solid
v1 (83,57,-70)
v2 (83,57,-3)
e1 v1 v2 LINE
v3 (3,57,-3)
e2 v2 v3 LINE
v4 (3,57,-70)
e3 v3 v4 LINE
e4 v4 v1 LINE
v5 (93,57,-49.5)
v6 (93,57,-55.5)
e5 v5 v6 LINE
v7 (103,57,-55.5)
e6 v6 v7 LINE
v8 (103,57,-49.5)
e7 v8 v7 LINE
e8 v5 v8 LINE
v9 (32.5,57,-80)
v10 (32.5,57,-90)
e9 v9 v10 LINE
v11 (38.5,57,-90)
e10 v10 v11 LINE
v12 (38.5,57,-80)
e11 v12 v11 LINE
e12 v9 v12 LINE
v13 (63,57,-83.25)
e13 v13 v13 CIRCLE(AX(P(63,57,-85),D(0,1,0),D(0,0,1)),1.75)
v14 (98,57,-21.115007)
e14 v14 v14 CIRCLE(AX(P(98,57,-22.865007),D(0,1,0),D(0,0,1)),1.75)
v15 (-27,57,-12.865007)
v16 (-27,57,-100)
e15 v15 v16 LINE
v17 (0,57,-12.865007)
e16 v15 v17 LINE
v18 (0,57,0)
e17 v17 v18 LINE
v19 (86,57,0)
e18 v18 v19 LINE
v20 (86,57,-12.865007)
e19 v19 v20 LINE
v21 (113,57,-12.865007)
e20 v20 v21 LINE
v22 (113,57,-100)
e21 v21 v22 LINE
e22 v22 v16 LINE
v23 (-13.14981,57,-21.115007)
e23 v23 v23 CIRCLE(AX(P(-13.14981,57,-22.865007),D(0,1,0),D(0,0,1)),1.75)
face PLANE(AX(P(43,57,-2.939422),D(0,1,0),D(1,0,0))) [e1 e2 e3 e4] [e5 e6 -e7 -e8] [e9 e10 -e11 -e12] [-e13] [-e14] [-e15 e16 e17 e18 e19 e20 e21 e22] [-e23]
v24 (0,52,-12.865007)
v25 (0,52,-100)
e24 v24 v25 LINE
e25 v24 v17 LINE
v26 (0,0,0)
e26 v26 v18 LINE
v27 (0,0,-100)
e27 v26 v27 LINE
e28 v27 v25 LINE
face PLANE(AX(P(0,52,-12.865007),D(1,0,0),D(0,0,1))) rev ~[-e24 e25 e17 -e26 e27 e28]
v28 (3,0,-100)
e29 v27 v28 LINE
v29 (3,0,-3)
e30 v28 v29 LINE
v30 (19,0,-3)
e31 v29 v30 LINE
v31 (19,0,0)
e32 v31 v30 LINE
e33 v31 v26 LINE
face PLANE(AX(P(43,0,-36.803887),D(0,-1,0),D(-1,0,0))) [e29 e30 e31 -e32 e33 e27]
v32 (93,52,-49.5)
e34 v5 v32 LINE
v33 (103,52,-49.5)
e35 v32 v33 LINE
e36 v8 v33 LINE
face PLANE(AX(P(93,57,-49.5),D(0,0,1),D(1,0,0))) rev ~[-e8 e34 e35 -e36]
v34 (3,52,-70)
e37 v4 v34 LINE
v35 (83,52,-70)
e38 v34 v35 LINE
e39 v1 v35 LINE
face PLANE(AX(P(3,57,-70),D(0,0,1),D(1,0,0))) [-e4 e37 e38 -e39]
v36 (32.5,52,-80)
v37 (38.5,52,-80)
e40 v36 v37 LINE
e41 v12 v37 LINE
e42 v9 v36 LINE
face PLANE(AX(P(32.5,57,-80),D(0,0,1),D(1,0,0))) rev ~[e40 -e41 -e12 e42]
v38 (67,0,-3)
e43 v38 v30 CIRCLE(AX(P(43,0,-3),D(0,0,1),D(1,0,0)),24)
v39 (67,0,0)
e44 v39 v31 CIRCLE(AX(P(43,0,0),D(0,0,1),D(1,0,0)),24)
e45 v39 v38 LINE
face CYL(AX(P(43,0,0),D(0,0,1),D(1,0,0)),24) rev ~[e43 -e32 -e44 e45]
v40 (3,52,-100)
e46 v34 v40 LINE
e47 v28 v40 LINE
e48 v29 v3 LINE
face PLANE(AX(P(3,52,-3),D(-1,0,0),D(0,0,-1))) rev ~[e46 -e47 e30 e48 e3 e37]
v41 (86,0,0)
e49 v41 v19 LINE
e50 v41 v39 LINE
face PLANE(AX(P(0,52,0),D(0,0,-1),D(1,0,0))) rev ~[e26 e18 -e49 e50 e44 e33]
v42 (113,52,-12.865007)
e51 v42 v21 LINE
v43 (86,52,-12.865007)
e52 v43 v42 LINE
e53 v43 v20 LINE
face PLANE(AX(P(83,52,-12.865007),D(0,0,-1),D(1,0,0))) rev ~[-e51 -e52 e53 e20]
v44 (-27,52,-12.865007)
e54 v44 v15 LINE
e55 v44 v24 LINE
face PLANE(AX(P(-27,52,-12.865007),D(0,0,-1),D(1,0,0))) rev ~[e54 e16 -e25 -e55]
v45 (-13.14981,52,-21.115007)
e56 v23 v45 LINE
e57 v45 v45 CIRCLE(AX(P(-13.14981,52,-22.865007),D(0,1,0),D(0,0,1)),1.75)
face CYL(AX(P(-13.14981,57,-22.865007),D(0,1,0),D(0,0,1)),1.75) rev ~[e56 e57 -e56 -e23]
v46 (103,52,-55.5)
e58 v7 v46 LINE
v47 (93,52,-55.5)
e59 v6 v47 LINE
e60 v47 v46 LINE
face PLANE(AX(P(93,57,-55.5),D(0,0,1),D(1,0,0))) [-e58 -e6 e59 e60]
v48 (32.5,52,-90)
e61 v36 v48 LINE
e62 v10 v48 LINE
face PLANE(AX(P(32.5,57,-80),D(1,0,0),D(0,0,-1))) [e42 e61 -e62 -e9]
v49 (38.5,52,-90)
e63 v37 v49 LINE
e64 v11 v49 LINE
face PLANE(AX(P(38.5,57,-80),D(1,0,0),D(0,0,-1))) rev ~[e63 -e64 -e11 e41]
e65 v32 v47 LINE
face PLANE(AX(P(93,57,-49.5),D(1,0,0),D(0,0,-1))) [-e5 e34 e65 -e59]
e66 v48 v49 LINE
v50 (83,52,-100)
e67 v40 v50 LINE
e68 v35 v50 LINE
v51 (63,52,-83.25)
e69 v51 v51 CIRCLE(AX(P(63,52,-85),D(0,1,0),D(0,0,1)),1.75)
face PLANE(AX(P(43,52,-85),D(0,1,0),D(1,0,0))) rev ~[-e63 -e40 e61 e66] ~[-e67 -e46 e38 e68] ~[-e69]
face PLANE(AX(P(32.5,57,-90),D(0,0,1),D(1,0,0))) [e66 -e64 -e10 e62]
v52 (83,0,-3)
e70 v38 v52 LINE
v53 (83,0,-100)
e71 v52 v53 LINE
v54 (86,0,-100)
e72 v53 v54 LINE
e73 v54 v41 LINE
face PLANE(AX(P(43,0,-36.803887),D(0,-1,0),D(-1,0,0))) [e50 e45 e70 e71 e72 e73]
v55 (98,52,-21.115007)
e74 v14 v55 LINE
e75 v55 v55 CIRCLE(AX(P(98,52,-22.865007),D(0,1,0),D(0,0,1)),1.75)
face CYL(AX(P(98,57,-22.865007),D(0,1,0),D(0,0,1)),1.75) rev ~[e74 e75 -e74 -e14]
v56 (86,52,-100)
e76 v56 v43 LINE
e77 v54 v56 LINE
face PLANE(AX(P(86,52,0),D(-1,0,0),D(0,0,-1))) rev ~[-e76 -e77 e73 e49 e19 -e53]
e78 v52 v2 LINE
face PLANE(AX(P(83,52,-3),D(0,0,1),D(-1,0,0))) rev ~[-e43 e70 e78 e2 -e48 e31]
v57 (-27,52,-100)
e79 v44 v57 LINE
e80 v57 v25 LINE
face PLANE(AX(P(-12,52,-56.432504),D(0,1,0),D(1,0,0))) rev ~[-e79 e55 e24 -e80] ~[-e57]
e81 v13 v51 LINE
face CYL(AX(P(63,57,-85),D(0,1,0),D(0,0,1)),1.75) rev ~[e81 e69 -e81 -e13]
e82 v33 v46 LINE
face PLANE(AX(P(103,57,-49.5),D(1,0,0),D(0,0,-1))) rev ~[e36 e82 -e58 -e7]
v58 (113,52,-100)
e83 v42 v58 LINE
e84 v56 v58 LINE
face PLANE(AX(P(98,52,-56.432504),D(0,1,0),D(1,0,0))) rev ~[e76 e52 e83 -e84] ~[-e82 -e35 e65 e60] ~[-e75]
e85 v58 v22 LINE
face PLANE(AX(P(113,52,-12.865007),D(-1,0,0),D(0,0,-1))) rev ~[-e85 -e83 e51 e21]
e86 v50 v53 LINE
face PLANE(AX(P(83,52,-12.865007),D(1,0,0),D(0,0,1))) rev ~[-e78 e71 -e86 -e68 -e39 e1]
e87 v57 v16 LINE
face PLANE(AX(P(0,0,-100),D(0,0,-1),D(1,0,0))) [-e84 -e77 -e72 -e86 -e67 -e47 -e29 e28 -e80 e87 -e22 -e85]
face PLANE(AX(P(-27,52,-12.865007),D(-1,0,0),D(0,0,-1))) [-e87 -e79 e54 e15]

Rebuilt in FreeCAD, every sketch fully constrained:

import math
import FreeCAD as App
import Part
import Sketcher
from FreeCAD import Vector


def add_polygon(sketch, points):
    """Adds a closed chain of lines whose ends are joined by coincident constraints."""
    first, n = sketch.GeometryCount, len(points)
    for a, b in zip(points, points[1:] + points[:1]):
        sketch.addGeometry(Part.LineSegment(App.Vector(*a, 0), App.Vector(*b, 0)), False)
    for i in range(n):
        sketch.addConstraint(Sketcher.Constraint("Coincident", first + i, 2, first + (i + 1) % n, 1))

doc = App.newDocument("Part")
body = doc.addObject("PartDesign::Body", "Body")

sketch1 = body.newObject("Sketcher::SketchObject", "Sketch")
sketch1.AttachmentSupport = (doc.getObject("XZ_Plane"), [""])
sketch1.MapMode = "FlatFace"
add_polygon(sketch1, [(0, -100), (0, 0), (86, 0), (86, -100), (83, -100), (83, -3), (3, -3), (3, -100)])
sketch1.addConstraint([
    Sketcher.Constraint("Vertical", 0),
    Sketcher.Constraint("Horizontal", 1),
    Sketcher.Constraint("Vertical", 2),
    Sketcher.Constraint("Horizontal", 3),
    Sketcher.Constraint("Vertical", 4),
    Sketcher.Constraint("Horizontal", 5),
    Sketcher.Constraint("Vertical", 6),
    Sketcher.Constraint("Horizontal", 7),
    Sketcher.Constraint("Coincident", 0, 2, -1, 1),
    Sketcher.Constraint("Horizontal", 3, 2, 6, 2),
    Sketcher.Constraint("Equal", 3, 7),
    Sketcher.Constraint("DistanceX", 1, 1, 1, 2, 86.0),
    Sketcher.Constraint("DistanceX", 3, 2, 3, 1, 3.0),
    Sketcher.Constraint("DistanceY", 0, 1, 0, 2, 100.0),
    Sketcher.Constraint("DistanceY", 4, 1, 4, 2, 97.0),
])
pad1 = body.newObject("PartDesign::Pad", "Pad")
pad1.Profile = sketch1
pad1.Length = 52
pad1.Reversed = True

sketch2 = body.newObject("Sketcher::SketchObject", "Sketch001")
sketch2.AttachmentSupport = (doc.getObject("XZ_Plane"), [""])
sketch2.MapMode = "FlatFace"
sketch2.AttachmentOffset = App.Placement(Vector(0, 0, -52), App.Rotation())
add_polygon(sketch2, [(83, -100), (83, -12.865007), (113, -12.865007), (113, -100)])
add_polygon(sketch2, [(-27, -100), (-27, -12.865007), (3, -12.865007), (3, -100)])
sketch2.addConstraint([
    Sketcher.Constraint("Vertical", 0),
    Sketcher.Constraint("Horizontal", 1),
    Sketcher.Constraint("Vertical", 2),
    Sketcher.Constraint("Horizontal", 3),
    Sketcher.Constraint("Vertical", 4),
    Sketcher.Constraint("Horizontal", 5),
    Sketcher.Constraint("Vertical", 6),
    Sketcher.Constraint("Horizontal", 7),
    Sketcher.Constraint("Horizontal", 1, 2, 4, 2),
    Sketcher.Constraint("Horizontal", 3, 2, 6, 2),
    Sketcher.Constraint("Equal", 3, 5),
    Sketcher.Constraint("DistanceX", 1, 1, 1, 2, 30.0),
    Sketcher.Constraint("DistanceX", -1, 1, 0, 2, 83.0),
    Sketcher.Constraint("DistanceY", 2, 2, -1, 1, 100.0),
    Sketcher.Constraint("DistanceX", 4, 2, -1, 1, 27.0),
    Sketcher.Constraint("DistanceY", 0, 1, 0, 2, 87.134993),
])
pad2 = body.newObject("PartDesign::Pad", "Pad001")
pad2.Profile = sketch2
pad2.Length = 5
pad2.Reversed = True

sketch3 = body.newObject("Sketcher::SketchObject", "Sketch002")
sketch3.AttachmentSupport = (doc.getObject("XZ_Plane"), [""])
sketch3.MapMode = "FlatFace"
sketch3.AttachmentOffset = App.Placement(Vector(0, 0, -57), App.Rotation())
add_polygon(sketch3, [(3, -100), (3, -70), (83, -70), (83, -100)])
sketch3.addConstraint([
    Sketcher.Constraint("Vertical", 0),
    Sketcher.Constraint("Horizontal", 1),
    Sketcher.Constraint("Vertical", 2),
    Sketcher.Constraint("Horizontal", 3),
    Sketcher.Constraint("DistanceX", 1, 1, 1, 2, 80.0),
    Sketcher.Constraint("DistanceY", 0, 1, 0, 2, 30.0),
    Sketcher.Constraint("DistanceX", -1, 1, 0, 2, 3.0),
    Sketcher.Constraint("DistanceY", 0, 2, -1, 1, 70.0),
])
pad3 = body.newObject("PartDesign::Pad", "Pad002")
pad3.Profile = sketch3
pad3.Length = 5

sketch4 = body.newObject("Sketcher::SketchObject", "Sketch003")
sketch4.AttachmentSupport = (doc.getObject("XZ_Plane"), [""])
sketch4.MapMode = "FlatFace"
sketch4.AttachmentOffset = App.Placement(Vector(0, 0, -52), App.Rotation())
add_polygon(sketch4, [(0, -12.865007), (0, 0), (86, 0), (86, -12.865007), (83, -12.865007), (83, -3), (3, -3), (3, -12.865007)])
sketch4.addConstraint([
    Sketcher.Constraint("Vertical", 0),
    Sketcher.Constraint("Horizontal", 1),
    Sketcher.Constraint("Vertical", 2),
    Sketcher.Constraint("Horizontal", 3),
    Sketcher.Constraint("Vertical", 4),
    Sketcher.Constraint("Horizontal", 5),
    Sketcher.Constraint("Vertical", 6),
    Sketcher.Constraint("Horizontal", 7),
    Sketcher.Constraint("Coincident", 0, 2, -1, 1),
    Sketcher.Constraint("Horizontal", 3, 2, 6, 2),
    Sketcher.Constraint("Equal", 3, 7),
    Sketcher.Constraint("DistanceX", 1, 1, 1, 2, 86.0),
    Sketcher.Constraint("DistanceX", 3, 2, 3, 1, 3.0),
    Sketcher.Constraint("DistanceY", 4, 2, -1, 1, 3.0),
    Sketcher.Constraint("DistanceY", 0, 1, 0, 2, 12.865007),
])
pad4 = body.newObject("PartDesign::Pad", "Pad003")
pad4.Profile = sketch4
pad4.Length = 5
pad4.Reversed = True

sketch5 = body.newObject("Sketcher::SketchObject", "Sketch004")
sketch5.AttachmentSupport = (doc.getObject("XY_Plane"), [""])
sketch5.MapMode = "FlatFace"
sketch5.addGeometry([
    Part.LineSegment(Vector(19, 0, 0), Vector(67, 0, 0)),
    Part.ArcOfCircle(Part.Circle(Vector(43, 0, 0), Vector(0, 0, 1), 24), math.radians(0), math.radians(180)),
], False)
sketch5.addConstraint([
    Sketcher.Constraint("Coincident", 0, 1, 1, 2),
    Sketcher.Constraint("Coincident", 1, 1, 0, 2),
    Sketcher.Constraint("Horizontal", 0),
    Sketcher.Constraint("PointOnObject", 1, 3, -1),
    Sketcher.Constraint("PointOnObject", 0, 1, -1),
    Sketcher.Constraint("Radius", 1, 24.0),
    Sketcher.Constraint("DistanceX", -1, 1, 1, 3, 43.0),
])
pocket1 = body.newObject("PartDesign::Pocket", "Pocket")
pocket1.Profile = sketch5
pocket1.Length = 5

sketch6 = body.newObject("Sketcher::SketchObject", "Sketch005")
sketch6.AttachmentSupport = (doc.getObject("XZ_Plane"), [""])
sketch6.MapMode = "FlatFace"
sketch6.AttachmentOffset = App.Placement(Vector(0, 0, -57), App.Rotation())
sketch6.addGeometry([
    Part.Circle(Vector(-13.14981, -22.865007, 0), Vector(0, 0, 1), 1.75),
    Part.Circle(Vector(63, -85, 0), Vector(0, 0, 1), 1.75),
    Part.Circle(Vector(98, -22.865007, 0), Vector(0, 0, 1), 1.75),
], False)
sketch6.addConstraint([
    Sketcher.Constraint("Equal", 0, 1),
    Sketcher.Constraint("Equal", 1, 2),
    Sketcher.Constraint("Horizontal", 0, 3, 2, 3),
    Sketcher.Constraint("Diameter", 0, 3.5),
    Sketcher.Constraint("DistanceX", -1, 1, 1, 3, 63.0),
    Sketcher.Constraint("DistanceY", 1, 3, -1, 1, 85.0),
    Sketcher.Constraint("DistanceX", -1, 1, 2, 3, 98.0),
    Sketcher.Constraint("DistanceX", 0, 3, -1, 1, 13.14981),
    Sketcher.Constraint("DistanceY", 0, 3, -1, 1, 22.865007),
])
pocket2 = body.newObject("PartDesign::Pocket", "Pocket001")
pocket2.Profile = sketch6
pocket2.Type = "ThroughAll"
pocket2.Reversed = True

sketch7 = body.newObject("Sketcher::SketchObject", "Sketch006")
sketch7.AttachmentSupport = (doc.getObject("XZ_Plane"), [""])
sketch7.MapMode = "FlatFace"
sketch7.AttachmentOffset = App.Placement(Vector(0, 0, -57), App.Rotation())
add_polygon(sketch7, [(93, -55.5), (93, -49.5), (103, -49.5), (103, -55.5)])
add_polygon(sketch7, [(32.5, -90), (32.5, -80), (38.5, -80), (38.5, -90)])
sketch7.addConstraint([
    Sketcher.Constraint("Vertical", 0),
    Sketcher.Constraint("Horizontal", 1),
    Sketcher.Constraint("Vertical", 2),
    Sketcher.Constraint("Horizontal", 3),
    Sketcher.Constraint("Vertical", 4),
    Sketcher.Constraint("Horizontal", 5),
    Sketcher.Constraint("Vertical", 6),
    Sketcher.Constraint("Horizontal", 7),
    Sketcher.Constraint("Equal", 7, 0),
    Sketcher.Constraint("Equal", 3, 4),
    Sketcher.Constraint("DistanceX", 1, 1, 1, 2, 10.0),
    Sketcher.Constraint("DistanceX", 5, 1, 5, 2, 6.0),
    Sketcher.Constraint("DistanceX", -1, 1, 0, 2, 93.0),
    Sketcher.Constraint("DistanceY", 4, 2, -1, 1, 80.0),
    Sketcher.Constraint("DistanceY", 0, 2, -1, 1, 49.5),
    Sketcher.Constraint("DistanceX", -1, 1, 4, 2, 32.5),
])
pocket3 = body.newObject("PartDesign::Pocket", "Pocket002")
pocket3.Profile = sketch7
pocket3.Type = "ThroughAll"
pocket3.Reversed = True

doc.recompute()
